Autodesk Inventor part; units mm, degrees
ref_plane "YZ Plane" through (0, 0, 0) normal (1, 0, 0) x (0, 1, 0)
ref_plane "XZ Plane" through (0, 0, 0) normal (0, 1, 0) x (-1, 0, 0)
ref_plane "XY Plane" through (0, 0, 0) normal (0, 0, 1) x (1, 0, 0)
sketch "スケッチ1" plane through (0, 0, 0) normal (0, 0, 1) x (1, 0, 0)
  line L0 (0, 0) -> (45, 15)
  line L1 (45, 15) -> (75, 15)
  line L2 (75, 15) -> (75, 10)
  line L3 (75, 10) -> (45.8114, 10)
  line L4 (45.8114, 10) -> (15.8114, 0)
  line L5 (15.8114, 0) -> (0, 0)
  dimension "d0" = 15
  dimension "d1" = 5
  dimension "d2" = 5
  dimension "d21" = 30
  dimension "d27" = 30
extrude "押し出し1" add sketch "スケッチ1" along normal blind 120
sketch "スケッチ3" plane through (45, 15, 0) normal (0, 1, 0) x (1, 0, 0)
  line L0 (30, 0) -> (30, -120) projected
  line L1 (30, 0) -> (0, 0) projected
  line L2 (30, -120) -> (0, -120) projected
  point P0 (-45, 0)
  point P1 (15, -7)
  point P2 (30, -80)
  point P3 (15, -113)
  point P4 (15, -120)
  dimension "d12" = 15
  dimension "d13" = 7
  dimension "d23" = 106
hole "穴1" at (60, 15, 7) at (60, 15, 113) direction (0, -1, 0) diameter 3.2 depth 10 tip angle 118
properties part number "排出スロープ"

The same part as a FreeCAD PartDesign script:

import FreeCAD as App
import Part
import Sketcher

V = App.Vector
Q = App.Units.Quantity


def add_polygon(sketch, points):
    """Adds a closed chain of lines whose ends are joined by coincident constraints."""
    first, n = sketch.GeometryCount, len(points)
    for a, b in zip(points, points[1:] + points[:1]):
        sketch.addGeometry(Part.LineSegment(App.Vector(*a, 0), App.Vector(*b, 0)), False)
    for i in range(n):
        sketch.addConstraint(Sketcher.Constraint("Coincident", first + i, 2, first + (i + 1) % n, 1))

doc = App.newDocument("Part")
body = doc.addObject("PartDesign::Body", "Body")

sketch1 = body.newObject("Sketcher::SketchObject", "Sketch")
sketch1.AttachmentSupport = (doc.getObject("XY_Plane"), [""])
sketch1.MapMode = "FlatFace"
add_polygon(sketch1, [(45, 15), (0, 0), (16, 0), (46, 10), (75, 10), (75, 15)])
sketch1.addConstraint([
    Sketcher.Constraint("Horizontal", 1),
    Sketcher.Constraint("Horizontal", 3),
    Sketcher.Constraint("Vertical", 4),
    Sketcher.Constraint("Horizontal", 5),
    Sketcher.Constraint("Coincident", 0, 2, -1, 1),
    Sketcher.Constraint("Parallel", 0, 2),
    Sketcher.Constraint("DistanceX", 5, 2, 5, 1, Q("30 mm")),
    Sketcher.Constraint("DistanceY", 4, 1, 4, 2, Q("5 mm")),
    Sketcher.Constraint("DistanceY", -1, 1, 4, 2, Q("15 mm")),
    Sketcher.Constraint("DistanceX", 1, 2, 2, 2, Q("30 mm")),
    Sketcher.Constraint("DistanceX", 1, 1, 1, 2, Q("15.8114 mm")),
])
pad1 = body.newObject("PartDesign::Pad", "Pad")
pad1.Profile = sketch1
pad1.Length = 120

sketch2 = body.newObject("Sketcher::SketchObject", "Sketch001")
sketch2.AttachmentSupport = (doc.getObject("XZ_Plane"), [""])
sketch2.MapMode = "FlatFace"
sketch2.AttachmentOffset = App.Placement(V(0, 0, -15), App.Rotation())
sketch2.addGeometry([
    Part.Circle(V(60, 7, 0), V(0, 0, 1), 1.6),
    Part.Circle(V(60, 113, 0), V(0, 0, 1), 1.6),
], False)
sketch2.addConstraint([
    Sketcher.Constraint("Equal", 0, 1),
    Sketcher.Constraint("Vertical", 0, 3, 1, 3),
    Sketcher.Constraint("Diameter", 0, Q("3.2 mm")),
    Sketcher.Constraint("DistanceX", -1, 1, 0, 3, Q("60 mm")),
    Sketcher.Constraint("DistanceY", -1, 1, 0, 3, Q("7 mm")),
    Sketcher.Constraint("DistanceY", -1, 1, 1, 3, Q("113 mm")),
])
doc.recompute()
hole = body.newObject("PartDesign::Hole", "Hole")
hole.Profile = sketch2
hole.ThreadType = "None"
hole.Diameter = 3.2
hole.DepthType = "Dimension"
hole.Depth = 10
hole.DrillPoint = "Angled"
hole.DrillPointAngle = 118
hole.Reversed = True

doc.recompute()
